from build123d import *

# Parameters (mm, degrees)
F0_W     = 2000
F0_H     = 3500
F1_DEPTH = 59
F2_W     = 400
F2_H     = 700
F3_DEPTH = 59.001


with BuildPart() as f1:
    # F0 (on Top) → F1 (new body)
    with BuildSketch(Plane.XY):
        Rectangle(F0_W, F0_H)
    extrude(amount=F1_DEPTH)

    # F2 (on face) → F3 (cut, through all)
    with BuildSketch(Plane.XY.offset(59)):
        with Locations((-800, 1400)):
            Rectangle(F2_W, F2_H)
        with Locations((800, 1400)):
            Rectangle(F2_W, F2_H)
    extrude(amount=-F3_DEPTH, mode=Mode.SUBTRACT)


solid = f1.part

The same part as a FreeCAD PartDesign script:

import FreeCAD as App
import Part
import Sketcher

V = App.Vector


def add_polygon(sketch, points):
    """Adds a closed chain of lines whose ends are joined by coincident constraints."""
    first, n = sketch.GeometryCount, len(points)
    for a, b in zip(points, points[1:] + points[:1]):
        sketch.addGeometry(Part.LineSegment(App.Vector(*a, 0), App.Vector(*b, 0)), False)
    for i in range(n):
        sketch.addConstraint(Sketcher.Constraint("Coincident", first + i, 2, first + (i + 1) % n, 1))

doc = App.newDocument("Part")
body = doc.addObject("PartDesign::Body", "Body")

# Sketch on XY plane
sketch1 = body.newObject("Sketcher::SketchObject", "Sketch")
sketch1.AttachmentSupport = (doc.getObject("XY_Plane"), [""])
sketch1.MapMode = "FlatFace"
add_polygon(sketch1, [(-1000, 1750), (-1000, -1750), (1000, -1750), (1000, 1750)])  # lines 0-3
sketch1.addConstraint(Sketcher.Constraint("Vertical", 0))
sketch1.addConstraint(Sketcher.Constraint("Horizontal", 1))
sketch1.addConstraint(Sketcher.Constraint("Vertical", 2))
sketch1.addConstraint(Sketcher.Constraint("Horizontal", 3))
sketch1.addConstraint(Sketcher.Constraint("Symmetric", 0, 2, 2, 2, -1, 1))
sketch1.addConstraint(Sketcher.Constraint("DistanceX", 1, 1, 1, 2, 2000.0))
sketch1.addConstraint(Sketcher.Constraint("DistanceY", 0, 2, 0, 1, 3500.0))
pad1 = body.newObject("PartDesign::Pad", "Pad")
pad1.Profile = sketch1
pad1.Length = 59

# Sketch on XY plane
sketch2 = body.newObject("Sketcher::SketchObject", "Sketch001")
sketch2.AttachmentSupport = (doc.getObject("XY_Plane"), [""])
sketch2.MapMode = "FlatFace"
sketch2.AttachmentOffset = App.Placement(V(0, 0, 59), App.Rotation())
add_polygon(sketch2, [(-1000, 1750), (-1000, 1050), (-600, 1050), (-600, 1750)])  # lines 0-3
add_polygon(sketch2, [(600, 1750), (600, 1050), (1000, 1050), (1000, 1750)])  # lines 4-7
sketch2.addConstraint(Sketcher.Constraint("Vertical", 0))
sketch2.addConstraint(Sketcher.Constraint("Horizontal", 1))
sketch2.addConstraint(Sketcher.Constraint("Vertical", 2))
sketch2.addConstraint(Sketcher.Constraint("Horizontal", 3))
sketch2.addConstraint(Sketcher.Constraint("Vertical", 4))
sketch2.addConstraint(Sketcher.Constraint("Horizontal", 5))
sketch2.addConstraint(Sketcher.Constraint("Vertical", 6))
sketch2.addConstraint(Sketcher.Constraint("Horizontal", 7))
sketch2.addConstraint(Sketcher.Constraint("Symmetric", 1, 2, 4, 2, -2))
sketch2.addConstraint(Sketcher.Constraint("Symmetric", 3, 2, 6, 2, -2))
sketch2.addConstraint(Sketcher.Constraint("DistanceX", 1, 1, 1, 2, 400.0))
sketch2.addConstraint(Sketcher.Constraint("DistanceY", 0, 2, 0, 1, 700.0))
sketch2.addConstraint(Sketcher.Constraint("DistanceX", 0, 2, -1, 1, 1000.0))
sketch2.addConstraint(Sketcher.Constraint("DistanceY", -1, 1, 0, 2, 1050.0))
pocket1 = body.newObject("PartDesign::Pocket", "Pocket")
pocket1.Profile = sketch2
pocket1.Type = "ThroughAll"

doc.recompute()
